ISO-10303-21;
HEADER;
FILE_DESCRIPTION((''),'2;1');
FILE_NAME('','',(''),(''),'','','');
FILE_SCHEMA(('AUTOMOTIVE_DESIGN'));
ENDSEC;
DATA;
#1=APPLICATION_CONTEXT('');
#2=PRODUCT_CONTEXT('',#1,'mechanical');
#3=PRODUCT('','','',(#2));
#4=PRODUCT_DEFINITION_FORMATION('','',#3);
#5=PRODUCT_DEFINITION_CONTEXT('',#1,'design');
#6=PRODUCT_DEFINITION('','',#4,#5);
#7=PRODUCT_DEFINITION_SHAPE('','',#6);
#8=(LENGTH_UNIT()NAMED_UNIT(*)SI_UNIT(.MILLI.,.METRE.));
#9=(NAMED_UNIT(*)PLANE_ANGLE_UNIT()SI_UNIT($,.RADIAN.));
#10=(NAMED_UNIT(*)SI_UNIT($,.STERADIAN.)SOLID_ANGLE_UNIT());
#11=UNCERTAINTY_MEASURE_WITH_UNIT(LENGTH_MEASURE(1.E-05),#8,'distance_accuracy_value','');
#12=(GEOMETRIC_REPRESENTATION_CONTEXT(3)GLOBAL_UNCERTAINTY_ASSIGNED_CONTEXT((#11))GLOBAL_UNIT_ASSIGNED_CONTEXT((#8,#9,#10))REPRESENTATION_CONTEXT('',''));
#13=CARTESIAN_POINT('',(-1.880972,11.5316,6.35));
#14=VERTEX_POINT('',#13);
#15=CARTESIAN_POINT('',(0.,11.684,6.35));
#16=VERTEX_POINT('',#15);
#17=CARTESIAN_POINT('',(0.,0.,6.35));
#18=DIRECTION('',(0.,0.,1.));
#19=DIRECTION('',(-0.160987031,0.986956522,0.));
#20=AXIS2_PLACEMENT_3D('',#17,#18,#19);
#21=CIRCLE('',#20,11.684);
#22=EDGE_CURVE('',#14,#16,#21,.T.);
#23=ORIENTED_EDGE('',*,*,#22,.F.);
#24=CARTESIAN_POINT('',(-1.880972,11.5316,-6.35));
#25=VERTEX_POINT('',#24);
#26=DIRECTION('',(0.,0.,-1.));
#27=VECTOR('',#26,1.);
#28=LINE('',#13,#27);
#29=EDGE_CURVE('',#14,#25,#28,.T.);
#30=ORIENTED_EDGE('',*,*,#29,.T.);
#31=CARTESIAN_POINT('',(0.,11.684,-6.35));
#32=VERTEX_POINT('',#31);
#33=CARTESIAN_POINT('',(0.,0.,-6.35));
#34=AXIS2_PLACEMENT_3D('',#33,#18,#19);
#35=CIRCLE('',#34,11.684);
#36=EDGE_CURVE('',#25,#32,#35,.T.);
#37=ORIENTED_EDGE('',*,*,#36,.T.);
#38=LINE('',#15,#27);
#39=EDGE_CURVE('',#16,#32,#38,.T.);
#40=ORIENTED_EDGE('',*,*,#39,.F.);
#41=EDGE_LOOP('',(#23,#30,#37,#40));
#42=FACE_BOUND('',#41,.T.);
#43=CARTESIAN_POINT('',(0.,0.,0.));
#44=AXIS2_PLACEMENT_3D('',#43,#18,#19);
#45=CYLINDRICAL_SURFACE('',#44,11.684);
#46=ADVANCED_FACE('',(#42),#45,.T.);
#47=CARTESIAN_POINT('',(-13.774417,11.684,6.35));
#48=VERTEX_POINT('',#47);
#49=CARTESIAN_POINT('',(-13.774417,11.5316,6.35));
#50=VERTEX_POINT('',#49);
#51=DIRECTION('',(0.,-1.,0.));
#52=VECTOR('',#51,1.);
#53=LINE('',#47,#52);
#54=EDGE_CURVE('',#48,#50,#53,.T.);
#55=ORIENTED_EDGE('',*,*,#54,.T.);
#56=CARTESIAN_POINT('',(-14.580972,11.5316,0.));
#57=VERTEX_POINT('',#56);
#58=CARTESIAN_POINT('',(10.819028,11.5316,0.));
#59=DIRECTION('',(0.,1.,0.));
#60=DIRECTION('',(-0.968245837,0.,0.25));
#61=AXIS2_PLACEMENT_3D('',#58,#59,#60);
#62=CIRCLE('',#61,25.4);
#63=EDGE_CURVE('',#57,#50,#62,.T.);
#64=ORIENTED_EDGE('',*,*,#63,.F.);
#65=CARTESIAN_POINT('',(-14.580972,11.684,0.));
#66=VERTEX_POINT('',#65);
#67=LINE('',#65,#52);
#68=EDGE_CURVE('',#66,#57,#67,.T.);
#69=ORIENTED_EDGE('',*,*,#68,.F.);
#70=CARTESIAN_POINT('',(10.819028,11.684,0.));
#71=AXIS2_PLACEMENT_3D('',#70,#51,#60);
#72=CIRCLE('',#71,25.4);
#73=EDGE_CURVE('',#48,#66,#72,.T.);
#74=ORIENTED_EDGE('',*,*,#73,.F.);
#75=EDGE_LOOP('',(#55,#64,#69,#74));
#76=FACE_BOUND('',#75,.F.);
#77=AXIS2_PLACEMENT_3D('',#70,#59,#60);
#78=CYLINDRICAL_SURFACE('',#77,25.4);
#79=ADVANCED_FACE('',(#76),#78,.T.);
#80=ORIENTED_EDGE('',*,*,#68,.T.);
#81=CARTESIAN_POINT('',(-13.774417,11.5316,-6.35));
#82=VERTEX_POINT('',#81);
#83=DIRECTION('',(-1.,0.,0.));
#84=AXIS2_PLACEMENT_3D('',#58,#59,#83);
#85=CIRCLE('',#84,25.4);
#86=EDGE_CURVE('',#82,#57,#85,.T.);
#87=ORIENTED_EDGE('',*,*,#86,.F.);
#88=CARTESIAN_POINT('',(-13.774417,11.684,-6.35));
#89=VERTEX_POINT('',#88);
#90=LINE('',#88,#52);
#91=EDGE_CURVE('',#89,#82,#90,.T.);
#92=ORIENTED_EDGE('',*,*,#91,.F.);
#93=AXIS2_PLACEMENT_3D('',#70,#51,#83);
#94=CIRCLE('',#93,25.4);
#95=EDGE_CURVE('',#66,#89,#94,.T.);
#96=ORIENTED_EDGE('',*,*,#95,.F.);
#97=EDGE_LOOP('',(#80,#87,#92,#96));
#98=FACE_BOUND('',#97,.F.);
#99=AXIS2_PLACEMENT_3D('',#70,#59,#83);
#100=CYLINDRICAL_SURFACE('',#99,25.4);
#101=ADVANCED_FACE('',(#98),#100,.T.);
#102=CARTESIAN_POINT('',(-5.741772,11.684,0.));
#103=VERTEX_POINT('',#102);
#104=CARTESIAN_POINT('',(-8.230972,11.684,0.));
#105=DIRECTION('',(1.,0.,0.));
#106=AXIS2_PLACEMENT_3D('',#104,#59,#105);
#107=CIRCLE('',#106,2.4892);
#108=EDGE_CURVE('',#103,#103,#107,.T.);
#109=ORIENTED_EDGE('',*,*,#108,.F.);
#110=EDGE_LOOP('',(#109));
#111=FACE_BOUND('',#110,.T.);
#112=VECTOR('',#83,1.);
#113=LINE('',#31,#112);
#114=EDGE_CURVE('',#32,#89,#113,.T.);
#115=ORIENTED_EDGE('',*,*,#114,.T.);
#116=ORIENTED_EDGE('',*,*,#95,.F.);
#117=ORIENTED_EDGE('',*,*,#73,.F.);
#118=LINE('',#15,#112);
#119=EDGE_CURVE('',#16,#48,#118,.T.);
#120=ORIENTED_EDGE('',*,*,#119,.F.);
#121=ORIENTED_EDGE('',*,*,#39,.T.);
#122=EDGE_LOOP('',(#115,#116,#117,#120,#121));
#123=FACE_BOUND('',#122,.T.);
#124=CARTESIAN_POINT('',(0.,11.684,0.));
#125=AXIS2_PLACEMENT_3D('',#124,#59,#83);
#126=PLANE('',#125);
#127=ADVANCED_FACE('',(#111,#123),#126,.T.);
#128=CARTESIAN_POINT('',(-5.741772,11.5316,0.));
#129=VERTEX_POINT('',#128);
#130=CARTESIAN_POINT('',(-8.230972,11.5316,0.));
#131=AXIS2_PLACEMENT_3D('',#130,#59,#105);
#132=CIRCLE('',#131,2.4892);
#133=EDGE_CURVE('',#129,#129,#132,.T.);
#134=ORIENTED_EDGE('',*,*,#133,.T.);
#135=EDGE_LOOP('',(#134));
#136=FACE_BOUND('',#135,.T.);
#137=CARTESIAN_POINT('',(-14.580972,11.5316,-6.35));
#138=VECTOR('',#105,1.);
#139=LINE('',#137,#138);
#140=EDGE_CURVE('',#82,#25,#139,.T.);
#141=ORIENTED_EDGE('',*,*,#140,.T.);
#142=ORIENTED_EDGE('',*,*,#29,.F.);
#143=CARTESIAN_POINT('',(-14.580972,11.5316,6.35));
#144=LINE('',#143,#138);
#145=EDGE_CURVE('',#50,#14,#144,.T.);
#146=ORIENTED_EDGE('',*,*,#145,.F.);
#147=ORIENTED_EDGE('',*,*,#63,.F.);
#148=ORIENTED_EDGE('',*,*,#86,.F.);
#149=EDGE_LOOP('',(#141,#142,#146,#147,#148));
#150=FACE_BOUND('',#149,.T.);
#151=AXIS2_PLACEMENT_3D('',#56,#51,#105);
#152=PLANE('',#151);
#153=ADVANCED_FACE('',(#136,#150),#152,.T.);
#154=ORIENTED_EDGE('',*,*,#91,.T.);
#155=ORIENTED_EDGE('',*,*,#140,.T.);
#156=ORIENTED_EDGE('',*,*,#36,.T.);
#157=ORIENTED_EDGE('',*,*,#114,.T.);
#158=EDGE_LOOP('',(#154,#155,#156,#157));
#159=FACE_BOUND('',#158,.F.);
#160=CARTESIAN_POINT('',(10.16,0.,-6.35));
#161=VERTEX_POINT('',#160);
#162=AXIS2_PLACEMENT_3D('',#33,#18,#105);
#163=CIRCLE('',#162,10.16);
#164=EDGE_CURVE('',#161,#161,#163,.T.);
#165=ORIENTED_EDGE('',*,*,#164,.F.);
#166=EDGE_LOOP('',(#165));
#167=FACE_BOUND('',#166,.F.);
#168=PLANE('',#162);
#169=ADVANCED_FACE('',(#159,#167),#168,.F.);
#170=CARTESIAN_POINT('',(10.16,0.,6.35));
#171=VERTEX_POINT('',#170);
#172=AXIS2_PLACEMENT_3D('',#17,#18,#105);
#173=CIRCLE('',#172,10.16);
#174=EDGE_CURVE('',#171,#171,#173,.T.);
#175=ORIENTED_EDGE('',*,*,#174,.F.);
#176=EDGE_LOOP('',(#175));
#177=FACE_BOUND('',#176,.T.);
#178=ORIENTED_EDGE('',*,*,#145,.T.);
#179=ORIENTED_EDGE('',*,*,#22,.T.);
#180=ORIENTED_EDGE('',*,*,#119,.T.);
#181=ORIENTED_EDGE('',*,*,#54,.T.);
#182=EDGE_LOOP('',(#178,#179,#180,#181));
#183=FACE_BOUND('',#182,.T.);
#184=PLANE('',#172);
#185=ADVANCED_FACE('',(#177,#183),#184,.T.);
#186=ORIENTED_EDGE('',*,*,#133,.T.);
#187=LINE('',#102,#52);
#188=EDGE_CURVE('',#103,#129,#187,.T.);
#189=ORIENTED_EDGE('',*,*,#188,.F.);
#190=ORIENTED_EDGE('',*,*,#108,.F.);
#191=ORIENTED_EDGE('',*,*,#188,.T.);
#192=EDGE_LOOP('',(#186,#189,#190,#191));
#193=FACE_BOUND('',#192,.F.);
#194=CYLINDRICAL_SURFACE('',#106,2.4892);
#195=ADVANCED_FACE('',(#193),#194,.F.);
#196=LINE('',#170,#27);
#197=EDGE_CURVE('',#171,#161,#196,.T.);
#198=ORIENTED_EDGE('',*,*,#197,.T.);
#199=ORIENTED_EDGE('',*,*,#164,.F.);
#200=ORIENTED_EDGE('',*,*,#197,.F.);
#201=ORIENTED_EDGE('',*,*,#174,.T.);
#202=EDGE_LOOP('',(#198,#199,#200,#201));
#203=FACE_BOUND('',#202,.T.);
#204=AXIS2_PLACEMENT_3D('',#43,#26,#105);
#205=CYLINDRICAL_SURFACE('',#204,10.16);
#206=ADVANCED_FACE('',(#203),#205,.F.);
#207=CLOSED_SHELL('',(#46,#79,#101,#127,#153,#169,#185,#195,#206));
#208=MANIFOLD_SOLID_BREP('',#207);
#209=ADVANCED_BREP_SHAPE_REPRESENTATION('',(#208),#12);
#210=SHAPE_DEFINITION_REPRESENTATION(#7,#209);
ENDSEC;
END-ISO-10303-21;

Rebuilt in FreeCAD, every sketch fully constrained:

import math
import FreeCAD as App
import Part
import Sketcher

V = App.Vector
Q = App.Units.Quantity

doc = App.newDocument("Part")
body = doc.addObject("PartDesign::Body", "Body")

# Sketch on XY plane
sketch1 = body.newObject("Sketcher::SketchObject", "Sketch")
sketch1.AttachmentSupport = (doc.getObject("XY_Plane"), [""])
sketch1.MapMode = "FlatFace"
sketch1.addGeometry(Part.LineSegment(V(0, 11.68, 0), V(-14.58, 11.68, 0)), False)
sketch1.addGeometry(Part.LineSegment(V(-14.58, 11.68, 0), V(-14.58, 11.53, 0)), False)
sketch1.addGeometry(Part.LineSegment(V(-14.58, 11.53, 0), V(-1.88, 11.53, 0)), False)
sketch1.addGeometry(Part.ArcOfCircle(Part.Circle(V(0, 0, 0), V(0, 0, 1), 11.68), math.radians(99), math.radians(450)), False)
sketch1.addGeometry(Part.Circle(V(0, 0, 0), V(0, 0, 1), 10.16), False)
sketch1.addConstraint(Sketcher.Constraint("Coincident", 0, 2, 1, 1))
sketch1.addConstraint(Sketcher.Constraint("Coincident", 1, 2, 2, 1))
sketch1.addConstraint(Sketcher.Constraint("Coincident", 2, 2, 3, 1))
sketch1.addConstraint(Sketcher.Constraint("Tangent", 3, 2, 0, 1))
sketch1.addConstraint(Sketcher.Constraint("Horizontal", 0))
sketch1.addConstraint(Sketcher.Constraint("Vertical", 1))
sketch1.addConstraint(Sketcher.Constraint("Horizontal", 2))
sketch1.addConstraint(Sketcher.Constraint("Coincident", 3, 3, -1, 1))
sketch1.addConstraint(Sketcher.Constraint("Coincident", 4, 3, -1, 1))
sketch1.addConstraint(Sketcher.Constraint("Diameter", 4, Q("0.8 in")))
sketch1.addConstraint(Sketcher.Constraint("Radius", 3, Q("0.46 in")))
sketch1.addConstraint(Sketcher.Constraint("DistanceX", 2, 1, 2, 2, Q("0.5 in")))
sketch1.addConstraint(Sketcher.Constraint("DistanceY", 1, 2, 1, 1, Q("0.006 in")))
pad1 = body.newObject("PartDesign::Pad", "Pad")
pad1.Profile = sketch1
pad1.Length = Q("0.5 in")
pad1.Midplane = True

# Sketch on XZ plane
sketch2 = body.newObject("Sketcher::SketchObject", "Sketch001")
sketch2.AttachmentSupport = (doc.getObject("XZ_Plane"), [""])
sketch2.MapMode = "FlatFace"
sketch2.AttachmentOffset = App.Placement(V(0, 0, -0.46 * 25.4), App.Rotation())
sketch2.addGeometry(Part.ArcOfCircle(Part.Circle(V(10.8, 0, 0), V(0, 0, 1), 25.4), math.radians(-180), math.radians(-165.52)), False)
sketch2.addGeometry(Part.LineSegment(V(-13.8, -6.3, 0), V(-14.6, -6.3, 0)), False)
sketch2.addGeometry(Part.LineSegment(V(-14.6, -6.3, 0), V(-14.6, 0, 0)), False)
sketch2.addConstraint(Sketcher.Constraint("Coincident", 0, 2, 1, 1))
sketch2.addConstraint(Sketcher.Constraint("Coincident", 1, 2, 2, 1))
sketch2.addConstraint(Sketcher.Constraint("Tangent", 2, 2, 0, 1))
sketch2.addConstraint(Sketcher.Constraint("Horizontal", 1))
sketch2.addConstraint(Sketcher.Constraint("Vertical", 2))
sketch2.addConstraint(Sketcher.Constraint("PointOnObject", 0, 3, -1))
sketch2.addConstraint(Sketcher.Constraint("Radius", 0, Q("1 in")))
sketch2.addConstraint(Sketcher.Constraint("DistanceY", 2, 1, 2, 2, Q("0.25 in")))
sketch2.addConstraint(Sketcher.Constraint("DistanceX", 0, 2, -1, 1, Q("0.5422999 in")))
pocket1 = body.newObject("PartDesign::Pocket", "Pocket")
pocket1.Profile = sketch2
pocket1.Type = "UpToFirst"
pocket1.Reversed = True

# Sketch on XZ plane
sketch3 = body.newObject("Sketcher::SketchObject", "Sketch002")
sketch3.AttachmentSupport = (doc.getObject("XZ_Plane"), [""])
sketch3.MapMode = "FlatFace"
sketch3.AttachmentOffset = App.Placement(V(0, 0, -0.46 * 25.4), App.Rotation())
sketch3.addGeometry(Part.ArcOfCircle(Part.Circle(V(10.8, 0, 0), V(0, 0, 1), 25.4), math.radians(165.52), math.radians(180)), False)
sketch3.addGeometry(Part.LineSegment(V(-14.6, 0, 0), V(-14.6, 6.3, 0)), False)
sketch3.addGeometry(Part.LineSegment(V(-14.6, 6.3, 0), V(-13.8, 6.3, 0)), False)
sketch3.addConstraint(Sketcher.Constraint("Tangent", 0, 2, 1, 1))
sketch3.addConstraint(Sketcher.Constraint("Coincident", 1, 2, 2, 1))
sketch3.addConstraint(Sketcher.Constraint("Coincident", 2, 2, 0, 1))
sketch3.addConstraint(Sketcher.Constraint("Vertical", 1))
sketch3.addConstraint(Sketcher.Constraint("Horizontal", 2))
sketch3.addConstraint(Sketcher.Constraint("PointOnObject", 0, 3, -1))
sketch3.addConstraint(Sketcher.Constraint("Radius", 0, Q("1 in")))
sketch3.addConstraint(Sketcher.Constraint("DistanceY", 1, 1, 1, 2, Q("0.25 in")))
sketch3.addConstraint(Sketcher.Constraint("DistanceX", 2, 2, -1, 1, Q("0.5422999 in")))
pocket2 = body.newObject("PartDesign::Pocket", "Pocket001")
pocket2.Profile = sketch3
pocket2.Type = "UpToFirst"
pocket2.Reversed = True

# Sketch on XZ plane
sketch4 = body.newObject("Sketcher::SketchObject", "Sketch003")
sketch4.AttachmentSupport = (doc.getObject("XZ_Plane"), [""])
sketch4.MapMode = "FlatFace"
sketch4.AttachmentOffset = App.Placement(V(0, 0, -0.46 * 25.4), App.Rotation())
sketch4.addGeometry(Part.Circle(V(-8.2, 0, 0), V(0, 0, 1), 2.5), False)
sketch4.addConstraint(Sketcher.Constraint("PointOnObject", 0, 3, -1))
sketch4.addConstraint(Sketcher.Constraint("Diameter", 0, Q("0.196 in")))
sketch4.addConstraint(Sketcher.Constraint("DistanceX", 0, 3, -1, 1, 8.230972))
pocket3 = body.newObject("PartDesign::Pocket", "Pocket002")
pocket3.Profile = sketch4
pocket3.Type = "UpToFirst"
pocket3.Reversed = True

doc.recompute()
